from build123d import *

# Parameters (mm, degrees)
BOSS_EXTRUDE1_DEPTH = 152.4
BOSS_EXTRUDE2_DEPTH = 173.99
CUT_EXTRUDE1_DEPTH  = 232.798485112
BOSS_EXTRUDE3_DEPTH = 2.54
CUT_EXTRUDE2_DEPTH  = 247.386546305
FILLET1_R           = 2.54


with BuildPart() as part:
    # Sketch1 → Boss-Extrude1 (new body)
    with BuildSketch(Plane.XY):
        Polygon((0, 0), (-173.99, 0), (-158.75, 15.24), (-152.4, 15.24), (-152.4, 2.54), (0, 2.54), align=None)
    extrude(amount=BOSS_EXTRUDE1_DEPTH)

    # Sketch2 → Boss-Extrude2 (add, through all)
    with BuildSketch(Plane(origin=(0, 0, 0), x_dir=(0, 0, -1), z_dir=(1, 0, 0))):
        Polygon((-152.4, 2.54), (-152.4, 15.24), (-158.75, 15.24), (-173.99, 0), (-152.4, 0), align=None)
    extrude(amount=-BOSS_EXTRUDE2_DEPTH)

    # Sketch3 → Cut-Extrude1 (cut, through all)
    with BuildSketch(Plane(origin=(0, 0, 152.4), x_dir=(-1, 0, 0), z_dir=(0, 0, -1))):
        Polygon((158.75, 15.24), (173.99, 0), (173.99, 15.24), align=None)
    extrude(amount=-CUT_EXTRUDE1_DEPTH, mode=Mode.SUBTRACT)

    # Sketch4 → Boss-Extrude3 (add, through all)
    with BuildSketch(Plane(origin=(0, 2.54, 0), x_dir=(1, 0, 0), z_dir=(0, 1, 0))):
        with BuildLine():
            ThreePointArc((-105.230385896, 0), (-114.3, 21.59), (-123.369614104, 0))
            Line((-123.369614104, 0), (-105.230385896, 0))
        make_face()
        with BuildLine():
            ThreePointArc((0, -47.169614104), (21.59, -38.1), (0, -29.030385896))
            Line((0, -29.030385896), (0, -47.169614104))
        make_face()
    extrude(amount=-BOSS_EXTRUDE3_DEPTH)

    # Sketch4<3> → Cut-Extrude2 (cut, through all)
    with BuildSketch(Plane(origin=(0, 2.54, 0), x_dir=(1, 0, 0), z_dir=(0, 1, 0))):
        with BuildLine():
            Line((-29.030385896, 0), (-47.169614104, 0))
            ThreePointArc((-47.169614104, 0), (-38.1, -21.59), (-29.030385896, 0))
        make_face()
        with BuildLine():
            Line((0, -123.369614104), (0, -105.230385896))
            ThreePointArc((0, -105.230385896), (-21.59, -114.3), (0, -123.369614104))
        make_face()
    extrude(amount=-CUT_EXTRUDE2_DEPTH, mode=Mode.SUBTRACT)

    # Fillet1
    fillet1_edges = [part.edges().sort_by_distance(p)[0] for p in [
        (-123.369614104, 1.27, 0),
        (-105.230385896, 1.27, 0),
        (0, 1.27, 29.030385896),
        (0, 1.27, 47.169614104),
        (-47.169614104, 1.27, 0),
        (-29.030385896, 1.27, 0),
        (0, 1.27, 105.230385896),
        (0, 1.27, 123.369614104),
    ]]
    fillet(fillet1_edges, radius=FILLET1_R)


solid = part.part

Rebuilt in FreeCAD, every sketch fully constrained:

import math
import FreeCAD as App
import Part
import Sketcher

V = App.Vector
Q = App.Units.Quantity


def edges_at(feature, points):
    """Names of the edges that pass closest to the given points."""
    edges = feature.Shape.Edges
    near = lambda p: min(range(len(edges)), key=lambda i: edges[i].distToShape(Part.Vertex(*p))[0])
    return sorted({f"Edge{near(p) + 1}" for p in points})


def add_polygon(sketch, points):
    """Adds a closed chain of lines whose ends are joined by coincident constraints."""
    first, n = sketch.GeometryCount, len(points)
    for a, b in zip(points, points[1:] + points[:1]):
        sketch.addGeometry(Part.LineSegment(App.Vector(*a, 0), App.Vector(*b, 0)), False)
    for i in range(n):
        sketch.addConstraint(Sketcher.Constraint("Coincident", first + i, 2, first + (i + 1) % n, 1))

doc = App.newDocument("Part")
body = doc.addObject("PartDesign::Body", "Body")

# Sketch on XY plane
sketch1 = body.newObject("Sketcher::SketchObject", "Sketch")
sketch1.AttachmentSupport = (doc.getObject("XY_Plane"), [""])
sketch1.MapMode = "FlatFace"
add_polygon(sketch1, [(-174, 0), (0, 0), (0, 2.5), (-152.4, 2.5), (-152.4, 15.2), (-158.8, 15.2)])  # lines 0-5
sketch1.addConstraint([
    Sketcher.Constraint("Horizontal", 0),
    Sketcher.Constraint("Vertical", 1),
    Sketcher.Constraint("Horizontal", 2),
    Sketcher.Constraint("Vertical", 3),
    Sketcher.Constraint("Horizontal", 4),
    Sketcher.Constraint("Coincident", 0, 2, -1, 1),
    Sketcher.Constraint("DistanceX", 2, 2, 2, 1, Q("6 in")),
    Sketcher.Constraint("DistanceY", 1, 1, 1, 2, Q("0.1 in")),
    Sketcher.Constraint("DistanceY", 3, 1, 3, 2, Q("0.5 in")),
    Sketcher.Constraint("Angle", 5, Q("-135 deg")),
    Sketcher.Constraint("DistanceX", 0, 1, 0, 2, Q("6.85 in")),
])
pad1 = body.newObject("PartDesign::Pad", "Pad")
pad1.Profile = sketch1
pad1.Length = Q("6 in")

# Sketch on YZ plane
sketch2 = body.newObject("Sketcher::SketchObject", "Sketch001")
sketch2.AttachmentSupport = (doc.getObject("YZ_Plane"), [""])
sketch2.MapMode = "FlatFace"
add_polygon(sketch2, [(15, 152), (15, 159), (0, 174), (0, 152)])  # lines 0-3
sketch2.addConstraint([
    Sketcher.Constraint("Vertical", 0),
    Sketcher.Constraint("Vertical", 2),
    Sketcher.Constraint("Horizontal", 3),
    Sketcher.Constraint("PointOnObject", 1, 2, -2),
    Sketcher.Constraint("DistanceX", 3, 1, 3, 2, Q("0.6 in")),
    Sketcher.Constraint("DistanceY", -1, 1, 2, 2, Q("6 in")),
    Sketcher.Constraint("Angle", 1, Q("135 deg")),
    Sketcher.Constraint("DistanceY", 0, 1, 0, 2, Q("0.25 in")),
])
pad2 = body.newObject("PartDesign::Pad", "Pad001")
pad2.Profile = sketch2
pad2.Length = Q("6.85 in")
pad2.Reversed = True

# Sketch on XY plane
sketch3 = body.newObject("Sketcher::SketchObject", "Sketch002")
sketch3.AttachmentSupport = (doc.getObject("XY_Plane"), [""])
sketch3.MapMode = "FlatFace"
sketch3.AttachmentOffset = App.Placement(V(0, 0, 6 * 25.4), App.Rotation())
add_polygon(sketch3, [(-159, 15), (-174, 0), (-174, 15)])  # lines 0-2
sketch3.addConstraint([
    Sketcher.Constraint("Vertical", 1),
    Sketcher.Constraint("Horizontal", 2),
    Sketcher.Constraint("PointOnObject", 0, 2, -1),
    Sketcher.Constraint("Equal", 2, 1),
    Sketcher.Constraint("DistanceX", 2, 1, 2, 2, Q("0.6 in")),
    Sketcher.Constraint("DistanceX", 0, 2, -1, 1, Q("6.85 in")),
])
pocket1 = body.newObject("PartDesign::Pocket", "Pocket")
pocket1.Profile = sketch3
pocket1.Type = "ThroughAll"
pocket1.Reversed = True

# Sketch on XZ plane
sketch4 = body.newObject("Sketcher::SketchObject", "Sketch003")
sketch4.AttachmentSupport = (doc.getObject("XZ_Plane"), [""])
sketch4.MapMode = "FlatFace"
sketch4.AttachmentOffset = App.Placement(V(0, 0, -0.1 * 25.4), App.Rotation())
sketch4.addGeometry([
    Part.ArcOfCircle(Part.Circle(V(-114, -9, 0), V(0, 0, 1), 13), math.radians(136), math.radians(404)),
    Part.LineSegment(V(-123, 0, 0), V(-105, 0, 0)),
    Part.ArcOfCircle(Part.Circle(V(9, 38, 0), V(0, 0, 1), 13), math.radians(-134), math.radians(134)),
    Part.LineSegment(V(0, 29, 0), V(0, 47, 0)),
], False)
sketch4.addConstraint([
    Sketcher.Constraint("Coincident", 0, 1, 1, 1),
    Sketcher.Constraint("Coincident", 1, 2, 0, 2),
    Sketcher.Constraint("Coincident", 2, 1, 3, 1),
    Sketcher.Constraint("Coincident", 3, 2, 2, 2),
    Sketcher.Constraint("Horizontal", 1),
    Sketcher.Constraint("Vertical", 3),
    Sketcher.Constraint("Equal", 0, 2),
    Sketcher.Constraint("PointOnObject", 0, 1, -1),
    Sketcher.Constraint("PointOnObject", 2, 1, -2),
    Sketcher.Constraint("Equal", 1, 3),
    Sketcher.Constraint("Radius", 0, Q("0.5 in")),
    Sketcher.Constraint("DistanceX", 0, 3, -1, 1, Q("4.5 in")),
    Sketcher.Constraint("DistanceY", -1, 1, 2, 3, Q("1.5 in")),
    Sketcher.Constraint("DistanceY", 0, 3, -1, 1, Q("0.35 in")),
])
pad3 = body.newObject("PartDesign::Pad", "Pad002")
pad3.Profile = sketch4
pad3.Type = "UpToLast"

# Sketch on XZ plane
sketch5 = body.newObject("Sketcher::SketchObject", "Sketch004")
sketch5.AttachmentSupport = (doc.getObject("XZ_Plane"), [""])
sketch5.MapMode = "FlatFace"
sketch5.AttachmentOffset = App.Placement(V(0, 0, -0.1 * 25.4), App.Rotation())
sketch5.addGeometry([
    Part.LineSegment(V(-29, 0, 0), V(-47, 0, 0)),
    Part.ArcOfCircle(Part.Circle(V(-38, 9, 0), V(0, 0, 1), 13), math.radians(-44), math.radians(224)),
    Part.LineSegment(V(0, 123, 0), V(0, 105, 0)),
    Part.ArcOfCircle(Part.Circle(V(-9, 114, 0), V(0, 0, 1), 13), math.radians(46), math.radians(314)),
], False)
sketch5.addConstraint([
    Sketcher.Constraint("Coincident", 0, 1, 1, 1),
    Sketcher.Constraint("Coincident", 1, 2, 0, 2),
    Sketcher.Constraint("Coincident", 2, 1, 3, 1),
    Sketcher.Constraint("Coincident", 3, 2, 2, 2),
    Sketcher.Constraint("Horizontal", 0),
    Sketcher.Constraint("Vertical", 2),
    Sketcher.Constraint("Equal", 1, 3),
    Sketcher.Constraint("PointOnObject", 0, 1, -1),
    Sketcher.Constraint("PointOnObject", 2, 1, -2),
    Sketcher.Constraint("Equal", 0, 2),
    Sketcher.Constraint("Radius", 1, Q("0.5 in")),
    Sketcher.Constraint("DistanceX", 1, 3, -1, 1, Q("1.5 in")),
    Sketcher.Constraint("DistanceY", -1, 1, 3, 3, Q("4.5 in")),
    Sketcher.Constraint("DistanceY", -1, 1, 1, 3, Q("0.35 in")),
])
pocket2 = body.newObject("PartDesign::Pocket", "Pocket001")
pocket2.Profile = sketch5
pocket2.Type = "ThroughAll"
pocket2.Reversed = True
doc.recompute()

fillet = body.newObject("PartDesign::Fillet", "Fillet")
fillet.Base = (pocket2, edges_at(pocket2, [
    (-123.37, 1.27, 0),
    (-105.23, 1.27, 0),
    (0, 1.27, 29.03),
    (0, 1.27, 47.17),
    (-47.17, 1.27, 0),
    (-29.03, 1.27, 0),
    (0, 1.27, 105.23),
    (0, 1.27, 123.37),
]))
fillet.Radius = Q("0.1 in")

doc.recompute()
